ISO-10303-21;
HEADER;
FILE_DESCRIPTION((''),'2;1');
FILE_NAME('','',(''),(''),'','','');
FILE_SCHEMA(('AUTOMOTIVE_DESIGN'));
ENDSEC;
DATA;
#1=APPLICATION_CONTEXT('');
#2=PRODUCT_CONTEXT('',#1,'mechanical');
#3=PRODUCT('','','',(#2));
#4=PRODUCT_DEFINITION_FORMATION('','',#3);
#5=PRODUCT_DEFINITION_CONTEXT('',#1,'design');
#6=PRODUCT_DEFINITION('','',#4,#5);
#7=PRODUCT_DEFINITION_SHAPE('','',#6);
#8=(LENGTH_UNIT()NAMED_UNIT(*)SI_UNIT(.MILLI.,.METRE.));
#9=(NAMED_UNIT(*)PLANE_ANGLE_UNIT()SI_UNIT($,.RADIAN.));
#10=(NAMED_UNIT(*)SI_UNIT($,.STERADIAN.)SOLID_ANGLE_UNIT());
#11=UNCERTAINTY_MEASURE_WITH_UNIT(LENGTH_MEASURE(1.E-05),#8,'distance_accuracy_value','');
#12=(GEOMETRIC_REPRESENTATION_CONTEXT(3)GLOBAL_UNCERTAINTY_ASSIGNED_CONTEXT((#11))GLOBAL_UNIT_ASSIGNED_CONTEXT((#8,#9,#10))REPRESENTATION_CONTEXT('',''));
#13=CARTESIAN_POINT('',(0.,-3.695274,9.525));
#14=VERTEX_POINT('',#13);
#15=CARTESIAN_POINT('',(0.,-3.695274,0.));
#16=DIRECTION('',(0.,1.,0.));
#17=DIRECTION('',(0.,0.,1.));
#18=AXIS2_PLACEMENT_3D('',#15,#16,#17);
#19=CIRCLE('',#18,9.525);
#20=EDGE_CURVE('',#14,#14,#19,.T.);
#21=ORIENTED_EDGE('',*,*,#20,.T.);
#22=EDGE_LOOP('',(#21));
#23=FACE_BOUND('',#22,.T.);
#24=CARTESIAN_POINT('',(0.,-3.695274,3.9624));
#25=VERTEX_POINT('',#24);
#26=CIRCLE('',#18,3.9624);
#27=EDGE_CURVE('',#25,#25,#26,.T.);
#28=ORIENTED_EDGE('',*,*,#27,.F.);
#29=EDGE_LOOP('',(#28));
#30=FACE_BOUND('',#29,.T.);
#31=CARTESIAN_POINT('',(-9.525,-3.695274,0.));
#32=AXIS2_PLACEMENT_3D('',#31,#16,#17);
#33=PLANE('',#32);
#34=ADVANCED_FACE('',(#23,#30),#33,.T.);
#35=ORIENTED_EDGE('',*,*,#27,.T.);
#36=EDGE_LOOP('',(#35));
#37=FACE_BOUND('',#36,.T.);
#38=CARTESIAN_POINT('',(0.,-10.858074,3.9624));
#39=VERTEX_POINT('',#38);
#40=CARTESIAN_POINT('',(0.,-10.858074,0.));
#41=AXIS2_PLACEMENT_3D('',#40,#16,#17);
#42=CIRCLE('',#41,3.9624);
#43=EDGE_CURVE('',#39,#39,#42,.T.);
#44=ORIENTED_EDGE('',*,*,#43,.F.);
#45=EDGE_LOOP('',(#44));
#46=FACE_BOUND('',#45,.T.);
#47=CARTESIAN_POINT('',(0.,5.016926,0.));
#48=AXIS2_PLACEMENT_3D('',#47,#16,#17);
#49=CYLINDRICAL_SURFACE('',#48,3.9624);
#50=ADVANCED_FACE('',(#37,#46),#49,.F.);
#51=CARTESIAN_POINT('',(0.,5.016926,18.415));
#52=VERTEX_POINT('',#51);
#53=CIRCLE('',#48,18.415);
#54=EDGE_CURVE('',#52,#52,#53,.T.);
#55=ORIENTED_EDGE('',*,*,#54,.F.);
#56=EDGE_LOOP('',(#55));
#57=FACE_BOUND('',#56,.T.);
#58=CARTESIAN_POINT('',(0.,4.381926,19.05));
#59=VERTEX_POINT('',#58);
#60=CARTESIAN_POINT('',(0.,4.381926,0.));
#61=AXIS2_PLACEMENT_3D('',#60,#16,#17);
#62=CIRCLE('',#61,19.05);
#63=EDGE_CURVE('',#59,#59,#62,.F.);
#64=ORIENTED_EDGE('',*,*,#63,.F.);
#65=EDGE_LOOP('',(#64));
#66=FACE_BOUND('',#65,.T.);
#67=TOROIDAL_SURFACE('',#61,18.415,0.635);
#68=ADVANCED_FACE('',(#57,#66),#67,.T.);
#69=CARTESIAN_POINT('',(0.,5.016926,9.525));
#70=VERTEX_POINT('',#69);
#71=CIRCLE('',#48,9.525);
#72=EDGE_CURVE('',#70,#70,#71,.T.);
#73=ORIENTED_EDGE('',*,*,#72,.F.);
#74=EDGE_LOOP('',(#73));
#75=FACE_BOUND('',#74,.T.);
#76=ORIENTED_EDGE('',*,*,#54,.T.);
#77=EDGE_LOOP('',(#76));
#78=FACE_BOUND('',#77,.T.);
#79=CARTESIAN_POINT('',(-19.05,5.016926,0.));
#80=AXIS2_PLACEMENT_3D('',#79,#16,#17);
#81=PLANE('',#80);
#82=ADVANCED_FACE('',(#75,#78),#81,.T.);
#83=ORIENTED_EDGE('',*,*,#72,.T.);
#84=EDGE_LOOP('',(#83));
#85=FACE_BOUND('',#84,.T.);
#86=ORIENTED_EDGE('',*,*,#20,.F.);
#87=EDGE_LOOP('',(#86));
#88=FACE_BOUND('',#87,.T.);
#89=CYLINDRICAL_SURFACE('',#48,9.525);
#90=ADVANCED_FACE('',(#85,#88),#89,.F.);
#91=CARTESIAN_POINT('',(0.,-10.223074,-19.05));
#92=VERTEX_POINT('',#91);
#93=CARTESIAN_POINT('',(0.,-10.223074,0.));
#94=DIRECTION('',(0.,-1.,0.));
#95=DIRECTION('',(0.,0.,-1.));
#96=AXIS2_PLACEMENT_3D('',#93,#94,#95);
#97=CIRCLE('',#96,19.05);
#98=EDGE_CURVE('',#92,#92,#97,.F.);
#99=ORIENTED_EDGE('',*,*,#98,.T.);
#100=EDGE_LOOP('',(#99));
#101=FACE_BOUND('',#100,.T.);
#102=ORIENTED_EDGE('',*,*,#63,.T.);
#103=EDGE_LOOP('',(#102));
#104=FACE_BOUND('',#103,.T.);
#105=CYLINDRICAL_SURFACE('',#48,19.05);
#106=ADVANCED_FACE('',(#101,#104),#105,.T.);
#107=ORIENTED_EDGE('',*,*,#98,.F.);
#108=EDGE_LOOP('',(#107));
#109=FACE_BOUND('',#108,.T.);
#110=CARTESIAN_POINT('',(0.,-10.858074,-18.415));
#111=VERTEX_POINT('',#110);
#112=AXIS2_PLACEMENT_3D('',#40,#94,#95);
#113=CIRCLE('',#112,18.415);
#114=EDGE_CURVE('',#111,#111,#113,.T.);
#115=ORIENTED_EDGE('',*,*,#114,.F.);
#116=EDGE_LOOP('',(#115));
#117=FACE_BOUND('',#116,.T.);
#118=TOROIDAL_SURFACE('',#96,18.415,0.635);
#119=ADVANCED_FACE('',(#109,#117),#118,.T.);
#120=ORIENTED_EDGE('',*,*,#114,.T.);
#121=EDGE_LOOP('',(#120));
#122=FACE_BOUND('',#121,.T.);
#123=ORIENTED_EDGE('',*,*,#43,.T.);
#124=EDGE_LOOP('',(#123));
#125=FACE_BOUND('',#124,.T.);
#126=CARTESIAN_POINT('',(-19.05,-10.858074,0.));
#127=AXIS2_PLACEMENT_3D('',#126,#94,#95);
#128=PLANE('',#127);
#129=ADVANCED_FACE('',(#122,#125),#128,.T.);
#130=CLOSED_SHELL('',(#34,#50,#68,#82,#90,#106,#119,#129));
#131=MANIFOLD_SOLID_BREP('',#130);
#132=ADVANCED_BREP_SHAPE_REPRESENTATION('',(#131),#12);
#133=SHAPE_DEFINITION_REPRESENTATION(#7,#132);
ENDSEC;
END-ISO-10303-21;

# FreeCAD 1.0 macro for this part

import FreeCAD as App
import Part
import Sketcher
from FreeCAD import Vector
Q = App.Units.Quantity


def edges_at(feature, points):
    """Names of the edges that pass closest to the given points."""
    edges = feature.Shape.Edges
    near = lambda p: min(range(len(edges)), key=lambda i: edges[i].distToShape(Part.Vertex(*p))[0])
    return sorted({f"Edge{near(p) + 1}" for p in points})


def add_polygon(sketch, points):
    """Adds a closed chain of lines whose ends are joined by coincident constraints."""
    first, n = sketch.GeometryCount, len(points)
    for a, b in zip(points, points[1:] + points[:1]):
        sketch.addGeometry(Part.LineSegment(App.Vector(*a, 0), App.Vector(*b, 0)), False)
    for i in range(n):
        sketch.addConstraint(Sketcher.Constraint("Coincident", first + i, 2, first + (i + 1) % n, 1))

doc = App.newDocument("Part")
body = doc.addObject("PartDesign::Body", "Body")

sketch1 = body.newObject("Sketcher::SketchObject", "Sketch")
sketch1.AttachmentSupport = (doc.getObject("XY_Plane"), [""])
sketch1.MapMode = "FlatFace"
add_polygon(sketch1, [(-19, 5), (-19, -11), (-4, -11), (-4, -4), (-10, -4), (-10, 5)])
sketch1.addConstraint([
    Sketcher.Constraint("Vertical", 0),
    Sketcher.Constraint("Horizontal", 1),
    Sketcher.Constraint("Vertical", 2),
    Sketcher.Constraint("Horizontal", 3),
    Sketcher.Constraint("Vertical", 4),
    Sketcher.Constraint("Horizontal", 5),
    Sketcher.Constraint("DistanceX", 1, 1, 1, 2, Q("0.594 in")),
    Sketcher.Constraint("DistanceX", 3, 2, 3, 1, Q("0.219 in")),
    Sketcher.Constraint("DistanceY", 0, 2, 0, 1, Q("0.625 in")),
    Sketcher.Constraint("DistanceY", 2, 1, 2, 2, Q("0.282 in")),
    Sketcher.Constraint("DistanceX", 0, 2, -1, 1, Q("0.75 in")),
    Sketcher.Constraint("DistanceY", 0, 2, -1, 1, 10.858074),
])
revolution = body.newObject("PartDesign::Revolution", "Revolution")
revolution.Profile = sketch1
revolution.ReferenceAxis = (sketch1, ["V_Axis"])
revolution.Angle = 360
doc.recompute()

fillet = body.newObject("PartDesign::Fillet", "Fillet")
fillet.Base = (revolution, edges_at(revolution, [(0, 5.017, -19.05), (0, -10.858, -19.05)]))
fillet.Radius = Q("0.025 in")

doc.recompute()
